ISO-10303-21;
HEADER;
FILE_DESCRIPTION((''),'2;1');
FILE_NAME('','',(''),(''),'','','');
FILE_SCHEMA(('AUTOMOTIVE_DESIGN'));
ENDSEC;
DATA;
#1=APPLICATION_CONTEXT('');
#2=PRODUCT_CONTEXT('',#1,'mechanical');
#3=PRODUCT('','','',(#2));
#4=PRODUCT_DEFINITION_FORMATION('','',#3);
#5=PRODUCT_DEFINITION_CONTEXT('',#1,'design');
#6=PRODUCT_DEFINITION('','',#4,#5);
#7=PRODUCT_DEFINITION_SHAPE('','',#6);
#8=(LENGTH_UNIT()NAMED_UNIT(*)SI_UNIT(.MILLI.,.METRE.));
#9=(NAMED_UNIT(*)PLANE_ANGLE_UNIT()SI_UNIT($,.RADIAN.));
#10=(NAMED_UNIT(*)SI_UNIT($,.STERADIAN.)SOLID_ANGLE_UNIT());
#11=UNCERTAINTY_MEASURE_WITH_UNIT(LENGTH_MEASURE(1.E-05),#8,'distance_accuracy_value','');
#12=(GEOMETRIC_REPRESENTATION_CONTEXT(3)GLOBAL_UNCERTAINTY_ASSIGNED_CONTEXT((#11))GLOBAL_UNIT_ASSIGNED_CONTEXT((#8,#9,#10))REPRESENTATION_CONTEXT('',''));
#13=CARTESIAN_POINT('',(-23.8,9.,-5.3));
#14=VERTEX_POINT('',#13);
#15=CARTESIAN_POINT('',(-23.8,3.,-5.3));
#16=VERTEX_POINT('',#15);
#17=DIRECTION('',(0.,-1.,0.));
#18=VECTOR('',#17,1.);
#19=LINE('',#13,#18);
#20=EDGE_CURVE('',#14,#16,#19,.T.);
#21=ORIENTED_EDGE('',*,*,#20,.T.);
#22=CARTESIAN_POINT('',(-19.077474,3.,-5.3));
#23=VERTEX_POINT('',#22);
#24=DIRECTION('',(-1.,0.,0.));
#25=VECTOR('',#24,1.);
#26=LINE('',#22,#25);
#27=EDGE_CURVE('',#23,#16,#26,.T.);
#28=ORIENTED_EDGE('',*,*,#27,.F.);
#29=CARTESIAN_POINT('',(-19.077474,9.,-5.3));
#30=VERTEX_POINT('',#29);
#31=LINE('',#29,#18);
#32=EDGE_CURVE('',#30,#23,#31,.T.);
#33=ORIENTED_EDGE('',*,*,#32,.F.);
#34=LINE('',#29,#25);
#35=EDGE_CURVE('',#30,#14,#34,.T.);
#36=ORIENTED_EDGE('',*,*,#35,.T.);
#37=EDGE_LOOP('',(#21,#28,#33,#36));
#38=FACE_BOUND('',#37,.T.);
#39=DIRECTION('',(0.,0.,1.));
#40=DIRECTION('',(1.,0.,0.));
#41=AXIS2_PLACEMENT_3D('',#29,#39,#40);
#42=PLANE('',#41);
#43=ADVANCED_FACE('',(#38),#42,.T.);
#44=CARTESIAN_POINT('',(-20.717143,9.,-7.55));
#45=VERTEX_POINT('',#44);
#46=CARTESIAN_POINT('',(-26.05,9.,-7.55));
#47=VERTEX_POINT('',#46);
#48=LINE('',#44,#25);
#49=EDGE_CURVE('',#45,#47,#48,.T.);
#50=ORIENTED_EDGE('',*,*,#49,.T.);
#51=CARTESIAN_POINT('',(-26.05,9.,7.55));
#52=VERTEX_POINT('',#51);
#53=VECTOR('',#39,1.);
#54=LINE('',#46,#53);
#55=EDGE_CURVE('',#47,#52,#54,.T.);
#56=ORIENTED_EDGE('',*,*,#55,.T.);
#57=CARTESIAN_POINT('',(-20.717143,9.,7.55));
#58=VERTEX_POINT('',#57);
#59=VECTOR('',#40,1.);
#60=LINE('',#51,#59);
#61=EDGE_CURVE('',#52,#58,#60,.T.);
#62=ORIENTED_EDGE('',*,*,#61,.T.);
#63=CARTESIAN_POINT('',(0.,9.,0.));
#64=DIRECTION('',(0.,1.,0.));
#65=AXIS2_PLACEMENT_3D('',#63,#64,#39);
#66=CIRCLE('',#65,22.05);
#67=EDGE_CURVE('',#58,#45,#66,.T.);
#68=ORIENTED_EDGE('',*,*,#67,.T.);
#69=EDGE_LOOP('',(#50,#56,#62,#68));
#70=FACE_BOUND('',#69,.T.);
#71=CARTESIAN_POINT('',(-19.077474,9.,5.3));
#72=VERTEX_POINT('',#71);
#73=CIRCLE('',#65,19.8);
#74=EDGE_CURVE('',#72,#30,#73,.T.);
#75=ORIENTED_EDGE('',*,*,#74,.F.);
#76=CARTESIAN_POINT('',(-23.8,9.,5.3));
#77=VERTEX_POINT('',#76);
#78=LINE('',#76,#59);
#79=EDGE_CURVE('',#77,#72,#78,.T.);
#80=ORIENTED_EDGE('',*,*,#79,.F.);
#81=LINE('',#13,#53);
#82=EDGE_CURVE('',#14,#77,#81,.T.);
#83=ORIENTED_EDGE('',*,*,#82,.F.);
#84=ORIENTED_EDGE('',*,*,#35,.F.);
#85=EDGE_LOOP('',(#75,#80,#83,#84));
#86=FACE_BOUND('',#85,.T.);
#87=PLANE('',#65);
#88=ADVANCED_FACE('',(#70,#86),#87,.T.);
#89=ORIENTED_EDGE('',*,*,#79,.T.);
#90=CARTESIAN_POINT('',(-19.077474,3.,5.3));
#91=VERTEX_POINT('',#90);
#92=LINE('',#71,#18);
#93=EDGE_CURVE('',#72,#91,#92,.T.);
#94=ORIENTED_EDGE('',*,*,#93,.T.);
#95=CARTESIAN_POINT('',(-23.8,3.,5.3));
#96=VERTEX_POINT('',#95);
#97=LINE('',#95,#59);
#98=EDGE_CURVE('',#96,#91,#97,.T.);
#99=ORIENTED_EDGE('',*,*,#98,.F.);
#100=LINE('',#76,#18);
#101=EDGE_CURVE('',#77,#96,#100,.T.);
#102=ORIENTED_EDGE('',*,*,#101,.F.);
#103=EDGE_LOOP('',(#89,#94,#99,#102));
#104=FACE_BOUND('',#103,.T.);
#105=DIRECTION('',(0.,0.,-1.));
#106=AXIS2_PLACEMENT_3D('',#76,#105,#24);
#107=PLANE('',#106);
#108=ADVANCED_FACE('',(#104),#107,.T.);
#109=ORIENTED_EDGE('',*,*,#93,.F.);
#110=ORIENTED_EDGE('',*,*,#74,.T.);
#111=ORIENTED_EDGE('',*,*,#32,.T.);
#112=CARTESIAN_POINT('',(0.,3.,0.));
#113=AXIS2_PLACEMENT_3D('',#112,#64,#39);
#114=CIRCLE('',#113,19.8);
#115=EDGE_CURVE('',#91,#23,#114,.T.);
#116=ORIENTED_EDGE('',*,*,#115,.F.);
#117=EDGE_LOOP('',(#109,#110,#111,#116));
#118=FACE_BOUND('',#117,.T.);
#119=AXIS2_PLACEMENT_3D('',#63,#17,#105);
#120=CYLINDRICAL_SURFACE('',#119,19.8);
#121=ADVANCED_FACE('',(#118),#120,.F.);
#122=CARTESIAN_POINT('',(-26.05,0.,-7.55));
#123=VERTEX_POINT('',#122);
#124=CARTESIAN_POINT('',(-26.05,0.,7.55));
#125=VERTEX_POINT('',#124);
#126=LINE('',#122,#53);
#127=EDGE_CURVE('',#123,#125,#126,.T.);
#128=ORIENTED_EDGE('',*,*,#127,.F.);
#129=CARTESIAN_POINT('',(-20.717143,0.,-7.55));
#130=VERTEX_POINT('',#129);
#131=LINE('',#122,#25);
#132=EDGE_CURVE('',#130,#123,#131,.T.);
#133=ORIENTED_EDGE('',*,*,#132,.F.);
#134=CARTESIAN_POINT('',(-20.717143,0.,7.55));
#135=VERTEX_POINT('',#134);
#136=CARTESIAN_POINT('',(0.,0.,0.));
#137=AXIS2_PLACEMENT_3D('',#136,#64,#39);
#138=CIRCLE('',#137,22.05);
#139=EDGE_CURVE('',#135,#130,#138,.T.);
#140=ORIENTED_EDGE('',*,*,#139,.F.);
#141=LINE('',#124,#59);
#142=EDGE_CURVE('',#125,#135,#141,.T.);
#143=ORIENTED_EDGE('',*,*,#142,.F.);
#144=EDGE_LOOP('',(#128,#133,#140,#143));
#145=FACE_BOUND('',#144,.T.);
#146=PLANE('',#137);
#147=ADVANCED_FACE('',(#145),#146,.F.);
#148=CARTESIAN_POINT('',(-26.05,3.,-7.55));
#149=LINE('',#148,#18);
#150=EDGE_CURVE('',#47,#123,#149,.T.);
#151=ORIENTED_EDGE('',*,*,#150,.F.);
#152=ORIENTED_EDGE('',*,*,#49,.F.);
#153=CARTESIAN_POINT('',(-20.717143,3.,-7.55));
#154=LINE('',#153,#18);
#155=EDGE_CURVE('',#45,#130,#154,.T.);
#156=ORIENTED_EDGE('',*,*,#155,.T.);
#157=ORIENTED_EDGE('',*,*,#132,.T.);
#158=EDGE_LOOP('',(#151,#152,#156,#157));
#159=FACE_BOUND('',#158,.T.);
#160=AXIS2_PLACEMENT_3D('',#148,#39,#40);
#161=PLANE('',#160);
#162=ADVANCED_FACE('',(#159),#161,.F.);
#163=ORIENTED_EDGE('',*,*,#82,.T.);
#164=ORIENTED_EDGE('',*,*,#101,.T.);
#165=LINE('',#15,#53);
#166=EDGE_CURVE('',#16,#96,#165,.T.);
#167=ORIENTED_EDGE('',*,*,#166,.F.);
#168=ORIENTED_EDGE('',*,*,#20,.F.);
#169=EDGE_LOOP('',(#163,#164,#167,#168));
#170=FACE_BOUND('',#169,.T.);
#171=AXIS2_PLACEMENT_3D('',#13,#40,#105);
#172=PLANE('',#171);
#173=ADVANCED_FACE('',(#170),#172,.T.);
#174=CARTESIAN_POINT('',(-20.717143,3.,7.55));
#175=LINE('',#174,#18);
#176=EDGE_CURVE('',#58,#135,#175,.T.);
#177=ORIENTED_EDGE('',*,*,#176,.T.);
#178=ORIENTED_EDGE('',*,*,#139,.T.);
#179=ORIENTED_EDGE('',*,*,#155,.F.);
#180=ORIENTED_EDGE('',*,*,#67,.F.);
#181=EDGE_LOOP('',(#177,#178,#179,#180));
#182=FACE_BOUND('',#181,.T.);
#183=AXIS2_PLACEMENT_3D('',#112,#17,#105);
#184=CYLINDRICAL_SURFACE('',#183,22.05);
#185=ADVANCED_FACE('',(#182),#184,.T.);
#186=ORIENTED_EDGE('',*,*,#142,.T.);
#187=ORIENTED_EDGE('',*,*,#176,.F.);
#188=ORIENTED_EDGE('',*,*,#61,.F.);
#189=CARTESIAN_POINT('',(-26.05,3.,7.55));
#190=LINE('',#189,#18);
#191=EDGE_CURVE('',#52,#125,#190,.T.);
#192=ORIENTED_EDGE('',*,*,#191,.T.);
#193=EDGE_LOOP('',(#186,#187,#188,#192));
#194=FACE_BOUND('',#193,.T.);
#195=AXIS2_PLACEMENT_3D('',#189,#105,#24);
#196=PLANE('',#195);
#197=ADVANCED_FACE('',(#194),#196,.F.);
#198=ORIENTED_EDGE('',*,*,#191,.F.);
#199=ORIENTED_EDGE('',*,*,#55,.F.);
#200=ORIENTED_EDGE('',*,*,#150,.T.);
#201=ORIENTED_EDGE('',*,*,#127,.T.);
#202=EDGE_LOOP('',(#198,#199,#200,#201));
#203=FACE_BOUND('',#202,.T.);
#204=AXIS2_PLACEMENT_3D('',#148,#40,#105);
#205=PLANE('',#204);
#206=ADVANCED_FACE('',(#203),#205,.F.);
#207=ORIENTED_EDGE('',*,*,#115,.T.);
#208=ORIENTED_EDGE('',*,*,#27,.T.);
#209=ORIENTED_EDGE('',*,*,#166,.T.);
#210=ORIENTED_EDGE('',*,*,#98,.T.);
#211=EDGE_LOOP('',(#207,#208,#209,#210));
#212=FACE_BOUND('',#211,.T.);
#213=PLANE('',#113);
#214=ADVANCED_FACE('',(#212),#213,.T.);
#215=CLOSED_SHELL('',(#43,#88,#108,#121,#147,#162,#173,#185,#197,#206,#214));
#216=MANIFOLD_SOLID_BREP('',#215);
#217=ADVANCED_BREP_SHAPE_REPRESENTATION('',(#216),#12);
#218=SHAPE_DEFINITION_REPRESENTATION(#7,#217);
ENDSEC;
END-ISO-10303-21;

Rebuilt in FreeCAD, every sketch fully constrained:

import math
import FreeCAD as App
import Part
import Sketcher

doc = App.newDocument("Part")
body = doc.addObject("PartDesign::Body", "Body")

# Sketch on XZ plane
sketch1 = body.newObject("Sketcher::SketchObject", "Sketch")
sketch1.AttachmentSupport = (doc.getObject("XZ_Plane"), [""])
sketch1.MapMode = "FlatFace"
sketch1.addGeometry([
    Part.LineSegment(App.Vector(-20.717143, -7.55, 0), App.Vector(-26.05, -7.55, 0)),
    Part.LineSegment(App.Vector(-26.05, -7.55, 0), App.Vector(-26.05, 7.55, 0)),
    Part.LineSegment(App.Vector(-26.05, 7.55, 0), App.Vector(-20.717143, 7.55, 0)),
    Part.ArcOfCircle(Part.Circle(App.Vector(0, 0, 0), App.Vector(0, 0, 1), 22.05), math.radians(-159.976616), math.radians(159.976616)),
], False)
sketch1.addConstraint([
    Sketcher.Constraint("Coincident", 0, 2, 1, 1),
    Sketcher.Constraint("Coincident", 1, 2, 2, 1),
    Sketcher.Constraint("Coincident", 2, 2, 3, 2),
    Sketcher.Constraint("Coincident", 3, 1, 0, 1),
    Sketcher.Constraint("Horizontal", 0),
    Sketcher.Constraint("Vertical", 1),
    Sketcher.Constraint("Horizontal", 2),
    Sketcher.Constraint("Coincident", 3, 3, -1, 1),
    Sketcher.Constraint("Vertical", 2, 2, 3, 1),
    Sketcher.Constraint("Radius", 3, 22.05),
    Sketcher.Constraint("DistanceY", 1, 1, 1, 2, 15.1),
    Sketcher.Constraint("DistanceX", 0, 2, -1, 1, 26.05),
])
pad1 = body.newObject("PartDesign::Pad", "Pad")
pad1.Profile = sketch1
pad1.Length = 3
pad1.Reversed = True

# Sketch on XZ plane
sketch2 = body.newObject("Sketcher::SketchObject", "Sketch001")
sketch2.AttachmentSupport = (doc.getObject("XZ_Plane"), [""])
sketch2.MapMode = "FlatFace"
sketch2.AttachmentOffset = App.Placement(App.Vector(0, 0, -3), App.Rotation())
sketch2.addGeometry([
    Part.LineSegment(App.Vector(-26.05, -7.55, 0), App.Vector(-26.05, 7.55, 0)),  # 0
    Part.LineSegment(App.Vector(-26.05, 7.55, 0), App.Vector(-20.717143, 7.55, 0)),  # 1
    Part.ArcOfCircle(Part.Circle(App.Vector(0, 0, 0), App.Vector(0, 0, 1), 22.05), math.radians(-159.976616), math.radians(159.976616)),  # 2
    Part.LineSegment(App.Vector(-20.717143, -7.55, 0), App.Vector(-26.05, -7.55, 0)),  # 3
    Part.LineSegment(App.Vector(-23.8, -5.3, 0), App.Vector(-19.077474, -5.3, 0)),  # 4
    Part.ArcOfCircle(Part.Circle(App.Vector(0, 0, 0), App.Vector(0, 0, 1), 19.8), math.radians(-164.473932), math.radians(164.473932)),  # 5
    Part.LineSegment(App.Vector(-19.077474, 5.3, 0), App.Vector(-23.8, 5.3, 0)),  # 6
    Part.LineSegment(App.Vector(-23.8, 5.3, 0), App.Vector(-23.8, -5.3, 0)),  # 7
], False)
sketch2.addConstraint([
    Sketcher.Constraint("Coincident", 0, 2, 1, 1),
    Sketcher.Constraint("Coincident", 1, 2, 2, 2),
    Sketcher.Constraint("Coincident", 2, 1, 3, 1),
    Sketcher.Constraint("Coincident", 3, 2, 0, 1),
    Sketcher.Constraint("Coincident", 4, 2, 5, 1),
    Sketcher.Constraint("Coincident", 5, 2, 6, 1),
    Sketcher.Constraint("Coincident", 6, 2, 7, 1),
    Sketcher.Constraint("Coincident", 7, 2, 4, 1),
    Sketcher.Constraint("Vertical", 0),
    Sketcher.Constraint("Horizontal", 1),
    Sketcher.Constraint("Horizontal", 3),
    Sketcher.Constraint("Horizontal", 4),
    Sketcher.Constraint("Horizontal", 6),
    Sketcher.Constraint("Vertical", 7),
    Sketcher.Constraint("Coincident", 2, 3, -1, 1),
    Sketcher.Constraint("Coincident", 5, 3, -1, 1),
    Sketcher.Constraint("Vertical", 1, 2, 2, 1),
    Sketcher.Constraint("Vertical", 4, 2, 5, 2),
    Sketcher.Constraint("Radius", 5, 19.8),
    Sketcher.Constraint("Radius", 2, 22.05),
    Sketcher.Constraint("DistanceY", 0, 1, 0, 2, 15.1),
    Sketcher.Constraint("DistanceY", 7, 2, 7, 1, 10.6),
    Sketcher.Constraint("DistanceX", 6, 2, -1, 1, 23.8),
    Sketcher.Constraint("DistanceX", 0, 2, -1, 1, 26.05),
])
pad2 = body.newObject("PartDesign::Pad", "Pad001")
pad2.Profile = sketch2
pad2.Length = 6
pad2.Reversed = True

doc.recompute()
